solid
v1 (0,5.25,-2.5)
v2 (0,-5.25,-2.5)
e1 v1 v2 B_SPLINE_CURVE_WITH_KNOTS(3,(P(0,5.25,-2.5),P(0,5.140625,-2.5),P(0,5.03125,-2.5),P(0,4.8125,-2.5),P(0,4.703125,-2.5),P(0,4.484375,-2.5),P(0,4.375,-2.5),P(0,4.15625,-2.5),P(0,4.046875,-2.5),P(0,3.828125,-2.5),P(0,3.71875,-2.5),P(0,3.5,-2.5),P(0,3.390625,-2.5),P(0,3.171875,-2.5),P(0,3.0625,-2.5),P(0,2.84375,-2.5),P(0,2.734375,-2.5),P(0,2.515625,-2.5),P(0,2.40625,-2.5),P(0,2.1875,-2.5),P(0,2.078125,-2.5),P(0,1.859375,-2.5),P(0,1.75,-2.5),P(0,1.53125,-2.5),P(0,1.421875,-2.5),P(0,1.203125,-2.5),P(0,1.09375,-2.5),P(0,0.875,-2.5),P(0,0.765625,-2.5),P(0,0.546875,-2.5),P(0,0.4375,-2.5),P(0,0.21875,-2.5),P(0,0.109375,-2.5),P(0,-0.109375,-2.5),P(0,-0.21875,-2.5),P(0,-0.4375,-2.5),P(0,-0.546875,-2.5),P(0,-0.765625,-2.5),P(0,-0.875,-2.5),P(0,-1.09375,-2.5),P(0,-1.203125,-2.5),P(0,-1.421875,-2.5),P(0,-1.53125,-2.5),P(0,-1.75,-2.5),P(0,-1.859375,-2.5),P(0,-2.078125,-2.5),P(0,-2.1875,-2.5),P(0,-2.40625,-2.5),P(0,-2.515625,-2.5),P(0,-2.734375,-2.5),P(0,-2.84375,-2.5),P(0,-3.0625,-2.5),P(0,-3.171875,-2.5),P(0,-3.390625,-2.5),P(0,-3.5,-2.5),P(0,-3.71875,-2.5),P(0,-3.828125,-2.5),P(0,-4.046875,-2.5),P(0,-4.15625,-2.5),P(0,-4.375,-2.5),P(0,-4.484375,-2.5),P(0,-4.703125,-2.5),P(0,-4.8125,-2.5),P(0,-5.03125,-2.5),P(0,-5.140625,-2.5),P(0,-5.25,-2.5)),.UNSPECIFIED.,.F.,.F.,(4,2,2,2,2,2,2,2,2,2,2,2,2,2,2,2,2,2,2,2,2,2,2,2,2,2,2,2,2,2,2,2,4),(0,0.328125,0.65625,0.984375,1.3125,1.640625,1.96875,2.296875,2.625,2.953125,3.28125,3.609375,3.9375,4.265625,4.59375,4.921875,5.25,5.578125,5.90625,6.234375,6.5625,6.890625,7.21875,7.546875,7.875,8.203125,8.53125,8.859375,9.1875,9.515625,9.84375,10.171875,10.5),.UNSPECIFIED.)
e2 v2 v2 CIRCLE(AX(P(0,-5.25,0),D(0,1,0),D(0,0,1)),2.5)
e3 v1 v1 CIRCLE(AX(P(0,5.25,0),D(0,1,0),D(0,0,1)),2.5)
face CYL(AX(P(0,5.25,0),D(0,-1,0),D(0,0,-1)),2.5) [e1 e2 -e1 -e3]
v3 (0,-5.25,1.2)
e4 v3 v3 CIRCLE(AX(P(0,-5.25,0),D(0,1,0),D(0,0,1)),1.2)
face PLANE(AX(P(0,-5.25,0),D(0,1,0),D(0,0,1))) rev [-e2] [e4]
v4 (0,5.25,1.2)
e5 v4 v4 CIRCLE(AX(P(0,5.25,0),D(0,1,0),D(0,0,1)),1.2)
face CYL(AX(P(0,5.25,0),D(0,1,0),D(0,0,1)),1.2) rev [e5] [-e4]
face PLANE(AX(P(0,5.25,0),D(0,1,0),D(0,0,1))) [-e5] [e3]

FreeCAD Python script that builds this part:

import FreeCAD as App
import Part
import Sketcher

doc = App.newDocument("Part")
body = doc.addObject("PartDesign::Body", "Body")

# Sketch on XZ plane
sketch1 = doc.addObject("Sketcher::SketchObject", "Sketch")
body.addObject(sketch1)
sketch1.AttachmentSupport = (doc.XZ_Plane, [""])
sketch1.MapMode = "FlatFace"
sketch1.addGeometry(Part.Circle(App.Vector(0, 0, 0), App.Vector(0, 0, 1), 2.5), False)
sketch1.addConstraint(Sketcher.Constraint("Coincident", 0, 3, -1, 1))
sketch1.addConstraint(Sketcher.Constraint("Diameter", 0, 5.0))
pad1 = doc.addObject("PartDesign::Pad", "Pad")
body.addObject(pad1)
pad1.Profile = sketch1
pad1.Length = 10.5
pad1.Midplane = True

# Sketch on XZ plane
sketch2 = doc.addObject("Sketcher::SketchObject", "Sketch001")
body.addObject(sketch2)
sketch2.AttachmentSupport = (doc.XZ_Plane, [""])
sketch2.MapMode = "FlatFace"
sketch2.AttachmentOffset = App.Placement(App.Vector(0, 0, -5.25), App.Rotation())
sketch2.addGeometry(Part.Circle(App.Vector(0, 0, 0), App.Vector(0, 0, 1), 1.2), False)
sketch2.addConstraint(Sketcher.Constraint("Coincident", 0, 3, -1, 1))
sketch2.addConstraint(Sketcher.Constraint("Diameter", 0, 2.4))
doc.recompute()
hole = doc.addObject("PartDesign::Hole", "Hole")
body.addObject(hole)
hole.Profile = sketch2
hole.ThreadType = "None"
hole.Diameter = 2.4
hole.DepthType = "ThroughAll"
hole.Reversed = True

doc.recompute()
